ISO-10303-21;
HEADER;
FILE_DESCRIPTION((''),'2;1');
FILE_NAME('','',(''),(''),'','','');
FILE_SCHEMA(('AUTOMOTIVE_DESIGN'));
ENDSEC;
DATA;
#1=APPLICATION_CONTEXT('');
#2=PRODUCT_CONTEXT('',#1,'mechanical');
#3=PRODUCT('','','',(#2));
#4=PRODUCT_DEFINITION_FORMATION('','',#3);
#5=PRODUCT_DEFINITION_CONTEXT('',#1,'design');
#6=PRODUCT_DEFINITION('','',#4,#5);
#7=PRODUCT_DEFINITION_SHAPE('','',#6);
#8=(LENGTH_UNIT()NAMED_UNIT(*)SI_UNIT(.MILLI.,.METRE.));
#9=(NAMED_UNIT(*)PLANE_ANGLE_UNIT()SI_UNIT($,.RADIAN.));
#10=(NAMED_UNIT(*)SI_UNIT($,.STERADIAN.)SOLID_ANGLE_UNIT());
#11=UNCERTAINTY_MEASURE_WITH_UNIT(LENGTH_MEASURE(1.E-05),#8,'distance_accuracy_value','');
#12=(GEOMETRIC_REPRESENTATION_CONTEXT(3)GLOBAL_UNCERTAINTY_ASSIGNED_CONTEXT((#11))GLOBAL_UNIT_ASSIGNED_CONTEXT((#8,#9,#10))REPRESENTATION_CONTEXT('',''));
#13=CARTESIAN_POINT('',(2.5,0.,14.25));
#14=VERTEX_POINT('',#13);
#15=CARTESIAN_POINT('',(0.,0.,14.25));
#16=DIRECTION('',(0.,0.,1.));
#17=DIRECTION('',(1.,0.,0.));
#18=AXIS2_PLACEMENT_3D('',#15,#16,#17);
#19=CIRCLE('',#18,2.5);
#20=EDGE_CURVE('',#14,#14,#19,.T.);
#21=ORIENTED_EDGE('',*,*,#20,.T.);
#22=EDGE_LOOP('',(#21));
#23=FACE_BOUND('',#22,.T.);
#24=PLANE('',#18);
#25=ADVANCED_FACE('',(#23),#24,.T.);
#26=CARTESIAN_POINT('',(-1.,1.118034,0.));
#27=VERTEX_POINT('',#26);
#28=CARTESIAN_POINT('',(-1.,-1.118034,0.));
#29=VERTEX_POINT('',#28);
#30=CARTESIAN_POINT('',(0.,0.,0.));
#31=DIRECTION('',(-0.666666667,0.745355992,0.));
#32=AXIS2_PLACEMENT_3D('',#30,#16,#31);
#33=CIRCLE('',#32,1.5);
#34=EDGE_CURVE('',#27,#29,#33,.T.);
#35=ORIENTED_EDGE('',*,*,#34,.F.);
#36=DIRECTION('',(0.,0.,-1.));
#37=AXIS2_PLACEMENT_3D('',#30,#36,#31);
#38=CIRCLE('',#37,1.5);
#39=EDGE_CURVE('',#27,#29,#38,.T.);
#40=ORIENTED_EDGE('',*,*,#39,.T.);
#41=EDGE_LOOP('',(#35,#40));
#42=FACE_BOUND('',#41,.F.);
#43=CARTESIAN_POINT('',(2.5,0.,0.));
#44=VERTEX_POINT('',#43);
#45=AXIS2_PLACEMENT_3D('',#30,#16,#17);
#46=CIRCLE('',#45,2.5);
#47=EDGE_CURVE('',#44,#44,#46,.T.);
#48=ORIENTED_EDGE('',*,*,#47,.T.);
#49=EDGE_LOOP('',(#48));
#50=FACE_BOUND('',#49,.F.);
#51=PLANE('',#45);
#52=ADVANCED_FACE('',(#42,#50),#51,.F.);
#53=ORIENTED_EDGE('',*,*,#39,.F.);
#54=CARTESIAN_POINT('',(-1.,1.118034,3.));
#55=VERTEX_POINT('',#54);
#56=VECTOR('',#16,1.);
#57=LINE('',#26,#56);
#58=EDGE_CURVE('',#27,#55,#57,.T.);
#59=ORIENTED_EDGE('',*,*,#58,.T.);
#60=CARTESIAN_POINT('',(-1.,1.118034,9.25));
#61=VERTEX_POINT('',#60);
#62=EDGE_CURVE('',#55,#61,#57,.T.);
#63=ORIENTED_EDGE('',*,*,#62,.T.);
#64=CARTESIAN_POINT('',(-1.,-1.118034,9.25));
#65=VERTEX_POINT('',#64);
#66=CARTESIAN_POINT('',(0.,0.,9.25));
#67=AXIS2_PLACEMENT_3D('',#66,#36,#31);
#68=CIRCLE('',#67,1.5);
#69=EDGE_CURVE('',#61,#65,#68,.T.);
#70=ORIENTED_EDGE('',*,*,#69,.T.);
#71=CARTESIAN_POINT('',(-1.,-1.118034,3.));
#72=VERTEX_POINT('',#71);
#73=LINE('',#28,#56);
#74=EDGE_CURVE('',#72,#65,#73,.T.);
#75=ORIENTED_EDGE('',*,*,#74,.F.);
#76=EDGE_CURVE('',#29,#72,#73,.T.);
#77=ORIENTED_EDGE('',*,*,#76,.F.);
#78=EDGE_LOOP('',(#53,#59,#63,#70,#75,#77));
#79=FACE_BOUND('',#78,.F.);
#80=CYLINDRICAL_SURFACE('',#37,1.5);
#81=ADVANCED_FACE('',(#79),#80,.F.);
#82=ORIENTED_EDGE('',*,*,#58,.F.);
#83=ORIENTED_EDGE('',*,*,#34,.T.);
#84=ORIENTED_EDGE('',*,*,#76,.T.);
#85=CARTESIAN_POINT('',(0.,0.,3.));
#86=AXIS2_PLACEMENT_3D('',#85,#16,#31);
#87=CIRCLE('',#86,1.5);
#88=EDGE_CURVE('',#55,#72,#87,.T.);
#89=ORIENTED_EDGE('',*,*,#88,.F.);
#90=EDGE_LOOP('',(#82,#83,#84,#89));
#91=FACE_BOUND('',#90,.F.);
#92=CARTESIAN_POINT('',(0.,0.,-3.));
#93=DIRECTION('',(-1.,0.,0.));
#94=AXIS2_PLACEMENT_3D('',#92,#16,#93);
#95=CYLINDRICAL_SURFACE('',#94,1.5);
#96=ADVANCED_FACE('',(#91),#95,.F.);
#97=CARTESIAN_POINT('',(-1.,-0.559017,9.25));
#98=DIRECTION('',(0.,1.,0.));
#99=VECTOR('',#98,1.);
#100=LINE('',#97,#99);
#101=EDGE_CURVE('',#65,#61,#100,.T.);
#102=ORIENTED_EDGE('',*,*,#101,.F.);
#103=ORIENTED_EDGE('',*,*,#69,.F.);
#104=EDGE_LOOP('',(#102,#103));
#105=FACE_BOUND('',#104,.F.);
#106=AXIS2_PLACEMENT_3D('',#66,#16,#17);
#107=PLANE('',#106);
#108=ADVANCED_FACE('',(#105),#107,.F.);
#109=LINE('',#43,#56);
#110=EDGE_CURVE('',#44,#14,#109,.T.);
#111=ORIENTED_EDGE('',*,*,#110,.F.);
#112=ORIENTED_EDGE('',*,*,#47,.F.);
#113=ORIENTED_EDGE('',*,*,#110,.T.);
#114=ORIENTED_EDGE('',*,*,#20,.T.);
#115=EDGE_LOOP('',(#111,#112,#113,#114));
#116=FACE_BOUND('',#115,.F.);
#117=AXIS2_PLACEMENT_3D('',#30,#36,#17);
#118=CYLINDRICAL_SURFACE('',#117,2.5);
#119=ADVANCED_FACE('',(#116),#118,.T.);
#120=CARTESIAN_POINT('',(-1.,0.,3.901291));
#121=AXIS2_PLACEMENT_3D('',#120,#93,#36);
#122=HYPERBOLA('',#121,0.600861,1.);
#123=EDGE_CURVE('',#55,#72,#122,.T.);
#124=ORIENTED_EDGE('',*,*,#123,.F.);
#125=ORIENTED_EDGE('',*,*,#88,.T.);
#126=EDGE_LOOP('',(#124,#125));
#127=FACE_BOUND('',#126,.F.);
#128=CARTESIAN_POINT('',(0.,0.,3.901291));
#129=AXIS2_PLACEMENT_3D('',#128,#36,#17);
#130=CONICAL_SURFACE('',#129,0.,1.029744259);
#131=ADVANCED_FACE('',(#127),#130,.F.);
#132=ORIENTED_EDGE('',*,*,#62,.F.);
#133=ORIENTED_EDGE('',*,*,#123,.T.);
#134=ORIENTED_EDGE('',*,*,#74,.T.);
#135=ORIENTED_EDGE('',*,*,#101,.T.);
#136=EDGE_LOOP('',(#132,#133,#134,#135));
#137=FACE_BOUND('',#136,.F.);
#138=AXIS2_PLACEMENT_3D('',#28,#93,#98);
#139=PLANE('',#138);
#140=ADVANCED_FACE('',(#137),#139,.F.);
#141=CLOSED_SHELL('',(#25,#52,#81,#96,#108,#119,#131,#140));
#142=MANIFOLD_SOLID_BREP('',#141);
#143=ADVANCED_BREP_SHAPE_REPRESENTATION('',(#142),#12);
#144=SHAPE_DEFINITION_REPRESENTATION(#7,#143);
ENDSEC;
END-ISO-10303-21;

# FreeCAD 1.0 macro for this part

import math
import FreeCAD as App
import Part
import Sketcher
from FreeCAD import Vector

doc = App.newDocument("Part")
body = doc.addObject("PartDesign::Body", "Body")

sketch1 = body.newObject("Sketcher::SketchObject", "Sketch")
sketch1.AttachmentSupport = (doc.getObject("XY_Plane"), [""])
sketch1.MapMode = "FlatFace"
sketch1.addGeometry([
    Part.Circle(Vector(0, 0, 0), Vector(0, 0, 1), 2.5),
    Part.LineSegment(Vector(-1, -1.118034, 0), Vector(-1, 1.118034, 0)),
    Part.ArcOfCircle(Part.Circle(Vector(0, 0, 0), Vector(0, 0, 1), 1.5), math.radians(-131.810315), math.radians(131.810315)),
], False)
sketch1.addConstraint([
    Sketcher.Constraint("Coincident", 1, 1, 2, 1),
    Sketcher.Constraint("Coincident", 2, 2, 1, 2),
    Sketcher.Constraint("Vertical", 1),
    Sketcher.Constraint("Coincident", 0, 3, -1, 1),
    Sketcher.Constraint("Coincident", 2, 3, -1, 1),
    Sketcher.Constraint("Diameter", 0, 5.0),
    Sketcher.Constraint("Radius", 2, 1.5),
    Sketcher.Constraint("DistanceX", 1, 1, -1, 1, 1.0),
])
pad1 = body.newObject("PartDesign::Pad", "Pad")
pad1.Profile = sketch1
pad1.Length = 14.25

sketch2 = body.newObject("Sketcher::SketchObject", "Sketch001")
sketch2.AttachmentSupport = (doc.getObject("XY_Plane"), [""])
sketch2.MapMode = "FlatFace"
sketch2.addGeometry(Part.Circle(Vector(0, 0, 0), Vector(0, 0, 1), 1.5), False)
sketch2.addConstraint([
    Sketcher.Constraint("Coincident", 0, 3, -1, 1),
    Sketcher.Constraint("Diameter", 0, 3.0),
])
doc.recompute()
hole = body.newObject("PartDesign::Hole", "Hole")
hole.Profile = sketch2
hole.ThreadType = "None"
hole.Diameter = 3
hole.DepthType = "Dimension"
hole.Depth = 3
hole.DrillPoint = "Angled"
hole.DrillPointAngle = 118
hole.Reversed = True

sketch3 = body.newObject("Sketcher::SketchObject", "Sketch002")
sketch3.AttachmentSupport = (doc.getObject("XY_Plane"), [""])
sketch3.MapMode = "FlatFace"
sketch3.AttachmentOffset = App.Placement(Vector(0, 0, 14.25), App.Rotation())
sketch3.addGeometry(Part.Circle(Vector(0, 0, 0), Vector(0, 0, 1), 2.150587), False)
sketch3.addConstraint([
    Sketcher.Constraint("Coincident", 0, 3, -1, 1),
    Sketcher.Constraint("Diameter", 0, 4.301174),
])
pad2 = body.newObject("PartDesign::Pad", "Pad001")
pad2.Profile = sketch3
pad2.Length = 5
pad2.Reversed = True

doc.recompute()
